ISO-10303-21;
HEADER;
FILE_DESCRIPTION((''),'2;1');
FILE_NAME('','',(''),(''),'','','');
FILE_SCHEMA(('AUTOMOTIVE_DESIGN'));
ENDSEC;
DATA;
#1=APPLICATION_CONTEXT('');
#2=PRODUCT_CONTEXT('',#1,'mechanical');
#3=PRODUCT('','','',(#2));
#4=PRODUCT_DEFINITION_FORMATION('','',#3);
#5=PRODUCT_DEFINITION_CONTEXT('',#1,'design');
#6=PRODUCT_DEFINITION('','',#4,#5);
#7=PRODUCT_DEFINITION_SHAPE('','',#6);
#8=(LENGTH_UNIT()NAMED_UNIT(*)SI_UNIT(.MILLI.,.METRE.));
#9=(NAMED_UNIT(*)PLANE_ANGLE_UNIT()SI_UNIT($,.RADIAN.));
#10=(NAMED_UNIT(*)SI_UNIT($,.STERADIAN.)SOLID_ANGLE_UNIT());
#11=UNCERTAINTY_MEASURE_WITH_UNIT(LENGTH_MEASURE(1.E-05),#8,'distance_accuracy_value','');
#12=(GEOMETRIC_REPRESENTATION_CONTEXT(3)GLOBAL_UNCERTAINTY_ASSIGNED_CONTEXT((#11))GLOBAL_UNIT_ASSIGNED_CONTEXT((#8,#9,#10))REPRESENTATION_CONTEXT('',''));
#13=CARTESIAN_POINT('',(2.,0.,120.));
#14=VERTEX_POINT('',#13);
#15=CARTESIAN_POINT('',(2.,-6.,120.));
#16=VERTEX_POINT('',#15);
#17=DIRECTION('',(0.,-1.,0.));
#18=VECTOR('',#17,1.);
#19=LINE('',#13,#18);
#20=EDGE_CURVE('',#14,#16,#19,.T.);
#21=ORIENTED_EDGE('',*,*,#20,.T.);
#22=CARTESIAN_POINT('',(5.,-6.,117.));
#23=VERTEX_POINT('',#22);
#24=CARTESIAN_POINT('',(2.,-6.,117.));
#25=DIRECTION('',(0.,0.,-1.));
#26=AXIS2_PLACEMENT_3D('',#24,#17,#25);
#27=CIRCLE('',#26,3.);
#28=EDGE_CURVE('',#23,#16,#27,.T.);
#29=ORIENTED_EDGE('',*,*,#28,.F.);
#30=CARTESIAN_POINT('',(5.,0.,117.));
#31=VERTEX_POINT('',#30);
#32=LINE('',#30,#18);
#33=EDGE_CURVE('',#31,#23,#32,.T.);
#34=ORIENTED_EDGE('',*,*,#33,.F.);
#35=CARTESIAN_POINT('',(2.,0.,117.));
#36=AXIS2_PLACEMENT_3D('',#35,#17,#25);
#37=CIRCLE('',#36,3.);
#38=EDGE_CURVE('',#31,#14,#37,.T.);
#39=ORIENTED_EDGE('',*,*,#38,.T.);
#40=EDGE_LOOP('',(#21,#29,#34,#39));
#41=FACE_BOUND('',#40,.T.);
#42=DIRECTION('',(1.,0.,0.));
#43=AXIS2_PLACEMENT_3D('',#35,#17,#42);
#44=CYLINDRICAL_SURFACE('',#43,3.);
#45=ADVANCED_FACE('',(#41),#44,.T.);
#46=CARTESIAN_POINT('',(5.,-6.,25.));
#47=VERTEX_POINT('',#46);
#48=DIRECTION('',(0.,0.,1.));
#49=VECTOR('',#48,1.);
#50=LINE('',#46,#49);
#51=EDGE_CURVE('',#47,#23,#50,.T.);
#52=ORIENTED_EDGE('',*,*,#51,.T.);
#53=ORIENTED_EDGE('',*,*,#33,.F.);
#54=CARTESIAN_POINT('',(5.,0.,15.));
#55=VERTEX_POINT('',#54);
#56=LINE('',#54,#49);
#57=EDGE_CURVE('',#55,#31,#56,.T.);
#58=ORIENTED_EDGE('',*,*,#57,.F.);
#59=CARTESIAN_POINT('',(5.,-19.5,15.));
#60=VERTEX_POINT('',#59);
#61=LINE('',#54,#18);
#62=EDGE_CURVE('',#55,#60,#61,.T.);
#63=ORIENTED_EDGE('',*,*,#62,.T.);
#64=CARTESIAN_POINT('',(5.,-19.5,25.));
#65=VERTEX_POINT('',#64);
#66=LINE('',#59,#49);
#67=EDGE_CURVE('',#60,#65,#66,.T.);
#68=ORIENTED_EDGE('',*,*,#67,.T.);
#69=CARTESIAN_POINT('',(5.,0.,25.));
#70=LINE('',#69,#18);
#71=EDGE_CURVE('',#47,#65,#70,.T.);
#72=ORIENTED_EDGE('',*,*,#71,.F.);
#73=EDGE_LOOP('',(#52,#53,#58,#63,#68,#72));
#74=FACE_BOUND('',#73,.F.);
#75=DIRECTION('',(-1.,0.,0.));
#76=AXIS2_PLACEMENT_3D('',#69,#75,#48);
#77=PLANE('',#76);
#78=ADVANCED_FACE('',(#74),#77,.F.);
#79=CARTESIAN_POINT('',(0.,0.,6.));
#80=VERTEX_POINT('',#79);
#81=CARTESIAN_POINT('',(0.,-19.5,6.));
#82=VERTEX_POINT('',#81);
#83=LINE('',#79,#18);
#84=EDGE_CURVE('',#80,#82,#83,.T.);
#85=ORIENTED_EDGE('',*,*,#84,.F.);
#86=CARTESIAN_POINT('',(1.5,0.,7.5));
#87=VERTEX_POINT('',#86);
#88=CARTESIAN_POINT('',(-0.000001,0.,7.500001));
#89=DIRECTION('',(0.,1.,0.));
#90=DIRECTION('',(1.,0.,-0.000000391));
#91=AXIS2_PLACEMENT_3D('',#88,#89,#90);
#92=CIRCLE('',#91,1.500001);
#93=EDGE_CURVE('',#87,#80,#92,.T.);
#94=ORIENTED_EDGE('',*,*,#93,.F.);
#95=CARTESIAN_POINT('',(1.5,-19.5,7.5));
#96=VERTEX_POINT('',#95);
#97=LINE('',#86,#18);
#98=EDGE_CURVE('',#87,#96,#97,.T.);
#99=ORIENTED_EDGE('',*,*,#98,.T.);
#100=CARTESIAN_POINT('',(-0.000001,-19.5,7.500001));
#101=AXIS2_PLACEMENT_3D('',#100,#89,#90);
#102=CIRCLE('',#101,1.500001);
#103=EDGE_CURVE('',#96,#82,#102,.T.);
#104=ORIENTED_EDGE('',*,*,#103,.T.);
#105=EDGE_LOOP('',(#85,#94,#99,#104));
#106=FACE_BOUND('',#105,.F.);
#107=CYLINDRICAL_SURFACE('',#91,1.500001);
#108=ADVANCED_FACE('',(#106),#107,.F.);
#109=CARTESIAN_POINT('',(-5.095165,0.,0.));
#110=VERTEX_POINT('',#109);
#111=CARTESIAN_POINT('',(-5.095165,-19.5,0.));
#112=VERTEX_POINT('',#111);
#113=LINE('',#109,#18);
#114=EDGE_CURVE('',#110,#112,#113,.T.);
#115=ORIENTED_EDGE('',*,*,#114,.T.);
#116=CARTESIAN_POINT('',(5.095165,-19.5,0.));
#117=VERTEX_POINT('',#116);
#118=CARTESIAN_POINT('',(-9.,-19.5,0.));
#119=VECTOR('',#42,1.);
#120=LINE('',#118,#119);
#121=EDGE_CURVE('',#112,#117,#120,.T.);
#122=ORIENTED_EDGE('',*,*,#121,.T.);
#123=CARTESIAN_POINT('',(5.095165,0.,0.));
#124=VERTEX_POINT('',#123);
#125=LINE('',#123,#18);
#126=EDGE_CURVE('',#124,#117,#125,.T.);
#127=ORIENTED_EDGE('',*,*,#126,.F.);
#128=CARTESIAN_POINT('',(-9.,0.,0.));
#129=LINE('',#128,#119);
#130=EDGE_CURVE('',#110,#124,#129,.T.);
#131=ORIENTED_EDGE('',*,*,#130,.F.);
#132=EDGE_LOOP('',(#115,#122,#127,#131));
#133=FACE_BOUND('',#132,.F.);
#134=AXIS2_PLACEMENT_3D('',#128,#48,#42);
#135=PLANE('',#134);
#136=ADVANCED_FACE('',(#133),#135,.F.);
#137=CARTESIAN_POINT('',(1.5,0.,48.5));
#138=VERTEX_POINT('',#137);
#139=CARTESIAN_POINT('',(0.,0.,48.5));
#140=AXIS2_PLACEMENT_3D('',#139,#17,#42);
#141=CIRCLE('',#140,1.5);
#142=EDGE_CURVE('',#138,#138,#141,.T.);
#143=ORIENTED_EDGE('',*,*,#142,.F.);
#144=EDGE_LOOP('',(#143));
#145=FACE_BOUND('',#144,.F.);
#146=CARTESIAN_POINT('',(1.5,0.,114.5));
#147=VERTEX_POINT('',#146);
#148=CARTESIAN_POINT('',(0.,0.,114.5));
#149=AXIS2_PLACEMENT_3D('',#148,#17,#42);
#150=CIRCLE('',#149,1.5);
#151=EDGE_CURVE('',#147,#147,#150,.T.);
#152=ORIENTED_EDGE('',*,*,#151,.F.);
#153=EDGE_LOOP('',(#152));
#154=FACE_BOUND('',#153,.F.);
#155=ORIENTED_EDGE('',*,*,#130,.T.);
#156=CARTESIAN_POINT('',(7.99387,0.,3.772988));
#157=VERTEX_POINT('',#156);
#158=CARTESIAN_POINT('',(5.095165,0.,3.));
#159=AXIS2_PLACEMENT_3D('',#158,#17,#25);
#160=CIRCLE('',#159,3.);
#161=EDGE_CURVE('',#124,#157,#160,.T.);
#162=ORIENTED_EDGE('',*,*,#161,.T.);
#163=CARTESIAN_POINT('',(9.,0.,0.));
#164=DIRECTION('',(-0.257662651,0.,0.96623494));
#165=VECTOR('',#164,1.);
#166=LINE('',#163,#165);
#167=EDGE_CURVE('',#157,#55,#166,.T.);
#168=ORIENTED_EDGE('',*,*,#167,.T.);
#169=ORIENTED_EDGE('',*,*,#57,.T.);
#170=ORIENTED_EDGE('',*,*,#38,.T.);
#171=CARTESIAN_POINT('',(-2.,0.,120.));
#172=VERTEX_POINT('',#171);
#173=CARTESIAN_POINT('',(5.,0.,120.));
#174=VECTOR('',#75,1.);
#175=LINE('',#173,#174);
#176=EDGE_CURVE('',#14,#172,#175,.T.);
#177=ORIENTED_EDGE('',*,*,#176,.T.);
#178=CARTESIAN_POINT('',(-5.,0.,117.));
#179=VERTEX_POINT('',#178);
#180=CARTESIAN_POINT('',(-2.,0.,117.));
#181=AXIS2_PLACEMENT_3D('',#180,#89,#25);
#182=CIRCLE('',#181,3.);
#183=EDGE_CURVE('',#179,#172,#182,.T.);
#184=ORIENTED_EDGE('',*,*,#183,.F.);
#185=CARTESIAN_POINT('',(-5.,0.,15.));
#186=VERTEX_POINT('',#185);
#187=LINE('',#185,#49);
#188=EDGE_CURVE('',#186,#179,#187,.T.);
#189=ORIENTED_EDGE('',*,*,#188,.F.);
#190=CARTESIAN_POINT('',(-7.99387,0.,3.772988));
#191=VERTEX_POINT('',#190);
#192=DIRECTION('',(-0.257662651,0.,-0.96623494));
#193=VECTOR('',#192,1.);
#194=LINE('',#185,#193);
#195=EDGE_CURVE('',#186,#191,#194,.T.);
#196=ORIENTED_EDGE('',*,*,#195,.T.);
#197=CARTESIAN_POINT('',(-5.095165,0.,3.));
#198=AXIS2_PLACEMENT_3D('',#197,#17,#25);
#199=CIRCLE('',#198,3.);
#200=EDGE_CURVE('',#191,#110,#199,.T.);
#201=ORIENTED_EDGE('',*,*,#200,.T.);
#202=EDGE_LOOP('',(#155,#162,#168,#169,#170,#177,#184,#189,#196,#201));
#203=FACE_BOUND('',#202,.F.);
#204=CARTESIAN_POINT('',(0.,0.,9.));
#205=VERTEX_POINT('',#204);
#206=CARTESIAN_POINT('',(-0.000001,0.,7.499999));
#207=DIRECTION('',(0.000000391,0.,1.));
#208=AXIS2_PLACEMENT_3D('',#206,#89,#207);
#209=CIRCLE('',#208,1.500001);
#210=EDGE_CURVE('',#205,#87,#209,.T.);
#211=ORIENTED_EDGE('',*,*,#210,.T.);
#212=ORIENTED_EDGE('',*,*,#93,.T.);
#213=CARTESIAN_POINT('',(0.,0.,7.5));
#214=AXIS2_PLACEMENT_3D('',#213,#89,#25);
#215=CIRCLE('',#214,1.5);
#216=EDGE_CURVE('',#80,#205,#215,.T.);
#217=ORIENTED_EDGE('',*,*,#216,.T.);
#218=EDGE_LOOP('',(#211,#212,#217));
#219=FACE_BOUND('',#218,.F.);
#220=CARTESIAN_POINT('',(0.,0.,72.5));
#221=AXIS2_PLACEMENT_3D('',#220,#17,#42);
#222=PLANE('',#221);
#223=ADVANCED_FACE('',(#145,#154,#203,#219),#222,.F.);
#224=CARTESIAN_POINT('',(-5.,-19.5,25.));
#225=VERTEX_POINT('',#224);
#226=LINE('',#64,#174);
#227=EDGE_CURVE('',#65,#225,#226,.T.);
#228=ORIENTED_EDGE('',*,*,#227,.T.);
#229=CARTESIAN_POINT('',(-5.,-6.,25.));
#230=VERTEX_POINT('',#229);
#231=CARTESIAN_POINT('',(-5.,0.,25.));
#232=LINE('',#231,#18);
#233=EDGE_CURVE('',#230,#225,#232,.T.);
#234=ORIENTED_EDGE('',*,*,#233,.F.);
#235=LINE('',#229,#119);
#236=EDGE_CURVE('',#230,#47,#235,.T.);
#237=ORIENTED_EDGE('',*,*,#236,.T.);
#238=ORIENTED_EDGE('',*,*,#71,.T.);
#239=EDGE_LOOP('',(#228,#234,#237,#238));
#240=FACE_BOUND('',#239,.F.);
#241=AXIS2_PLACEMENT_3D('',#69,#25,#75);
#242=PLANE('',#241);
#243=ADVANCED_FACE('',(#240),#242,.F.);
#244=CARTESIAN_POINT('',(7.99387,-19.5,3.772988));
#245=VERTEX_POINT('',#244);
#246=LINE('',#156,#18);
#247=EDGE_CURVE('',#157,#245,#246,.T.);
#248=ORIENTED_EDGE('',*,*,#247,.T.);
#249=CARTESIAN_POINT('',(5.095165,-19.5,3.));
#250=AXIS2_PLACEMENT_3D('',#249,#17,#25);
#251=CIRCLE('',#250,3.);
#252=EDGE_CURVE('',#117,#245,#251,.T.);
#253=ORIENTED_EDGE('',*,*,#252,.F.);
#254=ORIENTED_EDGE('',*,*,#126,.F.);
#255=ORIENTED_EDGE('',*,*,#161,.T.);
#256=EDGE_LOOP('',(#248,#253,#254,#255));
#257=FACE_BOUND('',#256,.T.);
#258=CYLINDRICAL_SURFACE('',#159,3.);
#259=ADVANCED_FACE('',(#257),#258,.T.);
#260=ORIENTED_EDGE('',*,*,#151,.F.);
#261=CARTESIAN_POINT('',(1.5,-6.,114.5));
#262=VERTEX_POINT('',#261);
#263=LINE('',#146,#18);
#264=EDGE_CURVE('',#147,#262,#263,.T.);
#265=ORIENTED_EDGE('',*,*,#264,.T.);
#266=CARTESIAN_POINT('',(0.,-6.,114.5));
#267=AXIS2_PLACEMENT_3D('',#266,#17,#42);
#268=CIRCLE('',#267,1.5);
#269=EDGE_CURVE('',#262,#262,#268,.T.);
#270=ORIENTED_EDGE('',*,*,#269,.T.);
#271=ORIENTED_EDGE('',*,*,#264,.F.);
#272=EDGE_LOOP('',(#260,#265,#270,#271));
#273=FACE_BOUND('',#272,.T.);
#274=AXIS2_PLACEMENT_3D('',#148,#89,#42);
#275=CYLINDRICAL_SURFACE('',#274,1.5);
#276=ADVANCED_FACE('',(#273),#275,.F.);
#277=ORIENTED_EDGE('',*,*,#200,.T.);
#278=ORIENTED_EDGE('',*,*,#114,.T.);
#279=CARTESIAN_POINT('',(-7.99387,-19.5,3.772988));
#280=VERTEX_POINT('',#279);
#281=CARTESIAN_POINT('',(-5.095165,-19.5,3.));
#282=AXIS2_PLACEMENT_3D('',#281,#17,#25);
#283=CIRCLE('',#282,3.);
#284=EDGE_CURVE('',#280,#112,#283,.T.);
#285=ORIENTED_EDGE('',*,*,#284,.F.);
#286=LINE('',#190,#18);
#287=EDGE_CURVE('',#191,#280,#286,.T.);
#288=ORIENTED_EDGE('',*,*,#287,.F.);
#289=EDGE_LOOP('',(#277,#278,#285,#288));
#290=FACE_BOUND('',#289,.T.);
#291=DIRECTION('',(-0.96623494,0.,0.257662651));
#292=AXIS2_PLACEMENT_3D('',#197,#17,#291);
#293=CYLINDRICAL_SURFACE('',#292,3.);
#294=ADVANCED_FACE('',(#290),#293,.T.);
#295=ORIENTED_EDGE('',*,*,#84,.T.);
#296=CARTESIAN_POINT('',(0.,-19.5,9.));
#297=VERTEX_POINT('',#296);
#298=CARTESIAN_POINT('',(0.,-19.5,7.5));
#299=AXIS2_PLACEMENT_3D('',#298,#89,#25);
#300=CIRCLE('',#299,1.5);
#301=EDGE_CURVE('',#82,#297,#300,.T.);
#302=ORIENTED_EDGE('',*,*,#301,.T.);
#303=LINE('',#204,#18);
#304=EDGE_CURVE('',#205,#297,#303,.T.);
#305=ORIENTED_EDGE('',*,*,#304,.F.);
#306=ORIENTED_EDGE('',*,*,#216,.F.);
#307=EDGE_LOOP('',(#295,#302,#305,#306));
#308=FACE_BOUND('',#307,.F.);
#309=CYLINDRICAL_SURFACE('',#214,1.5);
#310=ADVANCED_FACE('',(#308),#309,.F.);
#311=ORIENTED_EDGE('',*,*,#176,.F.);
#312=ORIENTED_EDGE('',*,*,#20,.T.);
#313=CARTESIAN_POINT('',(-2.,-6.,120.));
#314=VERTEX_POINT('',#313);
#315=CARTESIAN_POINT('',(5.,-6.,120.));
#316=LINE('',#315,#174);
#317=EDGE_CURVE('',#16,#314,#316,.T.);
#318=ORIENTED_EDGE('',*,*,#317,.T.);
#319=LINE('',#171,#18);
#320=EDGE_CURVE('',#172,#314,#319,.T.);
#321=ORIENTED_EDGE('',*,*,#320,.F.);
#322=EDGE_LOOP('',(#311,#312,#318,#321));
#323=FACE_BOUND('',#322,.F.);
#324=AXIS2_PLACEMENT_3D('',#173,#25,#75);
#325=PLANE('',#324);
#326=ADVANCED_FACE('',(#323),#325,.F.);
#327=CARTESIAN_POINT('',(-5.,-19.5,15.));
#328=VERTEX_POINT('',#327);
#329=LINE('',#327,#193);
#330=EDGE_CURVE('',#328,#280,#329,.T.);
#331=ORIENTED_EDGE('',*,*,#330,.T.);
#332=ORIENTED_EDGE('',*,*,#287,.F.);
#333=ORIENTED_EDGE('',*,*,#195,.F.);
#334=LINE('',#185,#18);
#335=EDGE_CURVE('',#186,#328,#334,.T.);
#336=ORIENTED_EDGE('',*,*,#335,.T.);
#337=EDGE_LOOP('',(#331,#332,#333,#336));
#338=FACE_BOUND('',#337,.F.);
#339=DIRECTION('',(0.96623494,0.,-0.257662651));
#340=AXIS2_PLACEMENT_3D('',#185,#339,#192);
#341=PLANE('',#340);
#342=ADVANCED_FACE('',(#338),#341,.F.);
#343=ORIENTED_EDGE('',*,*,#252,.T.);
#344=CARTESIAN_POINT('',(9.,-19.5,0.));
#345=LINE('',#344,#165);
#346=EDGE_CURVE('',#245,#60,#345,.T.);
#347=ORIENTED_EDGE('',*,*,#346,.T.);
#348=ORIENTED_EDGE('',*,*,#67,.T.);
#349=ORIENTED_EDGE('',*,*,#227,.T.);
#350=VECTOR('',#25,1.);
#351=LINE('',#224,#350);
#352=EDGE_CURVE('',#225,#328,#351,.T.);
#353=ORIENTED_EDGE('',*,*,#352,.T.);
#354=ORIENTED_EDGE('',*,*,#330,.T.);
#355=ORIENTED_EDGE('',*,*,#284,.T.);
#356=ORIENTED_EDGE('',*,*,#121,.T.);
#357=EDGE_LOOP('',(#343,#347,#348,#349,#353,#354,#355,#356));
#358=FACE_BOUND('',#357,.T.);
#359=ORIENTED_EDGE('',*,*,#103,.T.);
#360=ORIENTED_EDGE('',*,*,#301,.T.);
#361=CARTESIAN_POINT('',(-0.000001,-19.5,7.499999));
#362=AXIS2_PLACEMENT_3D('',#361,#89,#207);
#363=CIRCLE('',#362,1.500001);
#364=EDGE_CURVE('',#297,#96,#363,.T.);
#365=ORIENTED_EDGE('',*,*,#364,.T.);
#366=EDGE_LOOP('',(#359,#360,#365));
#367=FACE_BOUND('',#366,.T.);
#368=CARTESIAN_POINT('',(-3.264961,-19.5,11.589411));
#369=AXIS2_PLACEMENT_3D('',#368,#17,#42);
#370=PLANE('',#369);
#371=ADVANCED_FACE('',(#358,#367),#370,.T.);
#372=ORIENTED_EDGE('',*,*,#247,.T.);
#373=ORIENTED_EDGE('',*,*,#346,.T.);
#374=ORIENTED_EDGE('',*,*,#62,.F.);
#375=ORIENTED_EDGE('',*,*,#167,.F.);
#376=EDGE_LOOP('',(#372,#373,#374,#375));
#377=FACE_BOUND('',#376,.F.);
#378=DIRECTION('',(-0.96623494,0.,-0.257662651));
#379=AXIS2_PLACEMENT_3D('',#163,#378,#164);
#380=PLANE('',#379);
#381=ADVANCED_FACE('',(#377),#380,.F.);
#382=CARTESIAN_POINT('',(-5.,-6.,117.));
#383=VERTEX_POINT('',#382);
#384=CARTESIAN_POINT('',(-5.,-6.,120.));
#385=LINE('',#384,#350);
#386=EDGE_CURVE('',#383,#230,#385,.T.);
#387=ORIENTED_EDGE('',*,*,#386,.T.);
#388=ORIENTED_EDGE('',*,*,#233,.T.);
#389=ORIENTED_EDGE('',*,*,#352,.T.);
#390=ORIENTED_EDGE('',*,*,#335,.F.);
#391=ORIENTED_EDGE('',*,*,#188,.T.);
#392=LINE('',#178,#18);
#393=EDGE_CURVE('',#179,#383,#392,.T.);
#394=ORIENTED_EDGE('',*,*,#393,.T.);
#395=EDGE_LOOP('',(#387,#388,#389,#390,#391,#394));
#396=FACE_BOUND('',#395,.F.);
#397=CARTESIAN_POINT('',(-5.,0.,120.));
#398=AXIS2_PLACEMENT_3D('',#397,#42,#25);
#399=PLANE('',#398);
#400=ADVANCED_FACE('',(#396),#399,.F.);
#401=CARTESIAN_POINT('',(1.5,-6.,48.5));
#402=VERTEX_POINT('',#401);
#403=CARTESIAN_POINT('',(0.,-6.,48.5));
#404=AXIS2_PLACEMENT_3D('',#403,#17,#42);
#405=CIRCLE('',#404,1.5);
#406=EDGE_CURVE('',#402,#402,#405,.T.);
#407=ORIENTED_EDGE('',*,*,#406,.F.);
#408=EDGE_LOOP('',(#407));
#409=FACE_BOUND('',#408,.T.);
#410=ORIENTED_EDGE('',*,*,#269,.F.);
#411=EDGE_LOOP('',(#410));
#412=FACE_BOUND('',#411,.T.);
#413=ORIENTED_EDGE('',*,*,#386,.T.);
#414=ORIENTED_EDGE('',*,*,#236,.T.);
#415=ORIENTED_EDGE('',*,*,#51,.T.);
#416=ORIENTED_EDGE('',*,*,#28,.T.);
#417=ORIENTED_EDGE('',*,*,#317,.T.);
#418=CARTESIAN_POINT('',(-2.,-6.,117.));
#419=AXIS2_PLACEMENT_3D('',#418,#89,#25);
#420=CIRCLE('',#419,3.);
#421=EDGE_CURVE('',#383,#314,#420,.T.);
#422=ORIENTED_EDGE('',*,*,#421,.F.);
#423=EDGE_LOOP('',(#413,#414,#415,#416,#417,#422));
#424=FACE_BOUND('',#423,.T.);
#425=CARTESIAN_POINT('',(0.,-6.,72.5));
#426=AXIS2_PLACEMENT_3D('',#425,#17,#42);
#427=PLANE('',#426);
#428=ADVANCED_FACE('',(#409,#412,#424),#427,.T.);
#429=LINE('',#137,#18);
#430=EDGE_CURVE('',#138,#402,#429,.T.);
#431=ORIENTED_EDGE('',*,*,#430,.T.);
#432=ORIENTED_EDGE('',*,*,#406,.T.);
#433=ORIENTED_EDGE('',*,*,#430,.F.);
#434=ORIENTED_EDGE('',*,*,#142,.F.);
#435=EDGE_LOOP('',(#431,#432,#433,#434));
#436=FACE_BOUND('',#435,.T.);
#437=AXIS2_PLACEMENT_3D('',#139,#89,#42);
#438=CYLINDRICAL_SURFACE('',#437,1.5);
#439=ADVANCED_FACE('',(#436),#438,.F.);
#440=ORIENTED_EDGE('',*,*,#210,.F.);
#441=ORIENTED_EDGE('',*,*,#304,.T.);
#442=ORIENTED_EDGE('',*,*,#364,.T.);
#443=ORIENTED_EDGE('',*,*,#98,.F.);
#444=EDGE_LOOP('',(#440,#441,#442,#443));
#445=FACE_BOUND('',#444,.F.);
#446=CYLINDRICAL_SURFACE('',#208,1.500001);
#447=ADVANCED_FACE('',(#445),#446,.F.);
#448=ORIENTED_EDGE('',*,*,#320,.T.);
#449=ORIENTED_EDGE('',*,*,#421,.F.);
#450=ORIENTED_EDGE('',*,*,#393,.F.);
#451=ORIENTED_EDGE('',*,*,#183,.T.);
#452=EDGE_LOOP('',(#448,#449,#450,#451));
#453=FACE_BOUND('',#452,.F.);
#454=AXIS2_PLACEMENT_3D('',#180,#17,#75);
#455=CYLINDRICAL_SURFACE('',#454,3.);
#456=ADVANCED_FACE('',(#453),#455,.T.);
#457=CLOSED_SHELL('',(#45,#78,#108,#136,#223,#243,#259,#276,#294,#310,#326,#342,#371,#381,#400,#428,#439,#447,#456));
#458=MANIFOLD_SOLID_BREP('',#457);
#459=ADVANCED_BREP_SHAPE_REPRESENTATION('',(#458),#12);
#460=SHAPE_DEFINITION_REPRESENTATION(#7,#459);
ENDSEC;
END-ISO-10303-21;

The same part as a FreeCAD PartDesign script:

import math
import FreeCAD as App
import Part
import Sketcher

V = App.Vector


def edges_at(feature, points):
    """Names of the edges that pass closest to the given points."""
    edges = feature.Shape.Edges
    near = lambda p: min(range(len(edges)), key=lambda i: edges[i].distToShape(Part.Vertex(*p))[0])
    return sorted({f"Edge{near(p) + 1}" for p in points})

doc = App.newDocument("Part")
body = doc.addObject("PartDesign::Body", "Body")

# Sketch on XZ plane
sketch1 = doc.addObject("Sketcher::SketchObject", "Sketch")
body.addObject(sketch1)
sketch1.AttachmentSupport = (doc.XZ_Plane, [""])
sketch1.MapMode = "FlatFace"
sketch1.addGeometry([
    Part.LineSegment(V(-9, 0, 0), V(9, 0, 0)),  # 0
    Part.LineSegment(V(9, 0, 0), V(5, 15, 0)),  # 1
    Part.LineSegment(V(5, 15, 0), V(5, 25, 0)),  # 2
    Part.LineSegment(V(5, 25, 0), V(-5, 25, 0)),  # 3
    Part.LineSegment(V(-5, 25, 0), V(-5, 15, 0)),  # 4
    Part.LineSegment(V(-5, 15, 0), V(-9, 0, 0)),  # 5
    Part.ArcOfCircle(Part.Circle(V(0, 7.5, 0), V(0, 0, 1), 1.5), math.radians(90), math.radians(270)),  # 6
    Part.ArcOfCircle(Part.Circle(V(-0.000001, 7.499999, 0), V(0, 0, 1), 1.500001), math.radians(0.000022), math.radians(89.999978)),  # 7
    Part.ArcOfCircle(Part.Circle(V(-0.000001, 7.500001, 0), V(0, 0, 1), 1.500001), math.radians(-89.999978), math.radians(-0.000022)),  # 8
], False)
sketch1.addConstraint([
    Sketcher.Constraint("Coincident", 0, 2, 1, 1),
    Sketcher.Constraint("Coincident", 1, 2, 2, 1),
    Sketcher.Constraint("Coincident", 2, 2, 3, 1),
    Sketcher.Constraint("Coincident", 3, 2, 4, 1),
    Sketcher.Constraint("Coincident", 4, 2, 5, 1),
    Sketcher.Constraint("Coincident", 5, 2, 0, 1),
    Sketcher.Constraint("Tangent", 6, 1, 7, 2),
    Sketcher.Constraint("Tangent", 7, 1, 8, 2),
    Sketcher.Constraint("Tangent", 8, 1, 6, 2),
    Sketcher.Constraint("Horizontal", 0),
    Sketcher.Constraint("Vertical", 2),
    Sketcher.Constraint("Horizontal", 3),
    Sketcher.Constraint("Vertical", 4),
    Sketcher.Constraint("Symmetric", 0, 2, 5, 2, -1, 1),
    Sketcher.Constraint("Symmetric", 1, 2, 4, 2, -2),
    Sketcher.Constraint("PointOnObject", 6, 3, -2),
    Sketcher.Constraint("PointOnObject", 6, 1, -2),
    Sketcher.Constraint("PointOnObject", 8, 1, -2),
    Sketcher.Constraint("Horizontal", 8, 3, 7, 1),
    Sketcher.Constraint("Equal", 3, 2),
    Sketcher.Constraint("Radius", 6, 1.5),
    Sketcher.Constraint("DistanceX", 0, 1, 0, 2, 18.0),
    Sketcher.Constraint("DistanceX", 3, 2, 3, 1, 10.0),
    Sketcher.Constraint("DistanceY", -1, 1, 1, 2, 15.0),
    Sketcher.Constraint("DistanceY", -1, 1, 6, 1, 9.0),
])
pad1 = doc.addObject("PartDesign::Pad", "Pad")
body.addObject(pad1)
pad1.Profile = sketch1
pad1.Length = 19.5

# Sketch on XZ plane
sketch2 = doc.addObject("Sketcher::SketchObject", "Sketch001")
body.addObject(sketch2)
sketch2.AttachmentSupport = (doc.XZ_Plane, [""])
sketch2.MapMode = "FlatFace"
sketch2.addGeometry([
    Part.LineSegment(V(5, 25, 0), V(5, 120, 0)),  # 0
    Part.LineSegment(V(5, 120, 0), V(-5, 120, 0)),  # 1
    Part.LineSegment(V(-5, 120, 0), V(-5, 25, 0)),  # 2
    Part.LineSegment(V(-5, 25, 0), V(5, 25, 0)),  # 3
    Part.Circle(V(0, 48.5, 0), V(0, 0, 1), 1.5),  # 4
    Part.Circle(V(0, 114.5, 0), V(0, 0, 1), 1.5),  # 5
], False)
sketch2.addConstraint([
    Sketcher.Constraint("Coincident", 0, 2, 1, 1),
    Sketcher.Constraint("Coincident", 1, 2, 2, 1),
    Sketcher.Constraint("Coincident", 2, 2, 3, 1),
    Sketcher.Constraint("Coincident", 3, 2, 0, 1),
    Sketcher.Constraint("Vertical", 0),
    Sketcher.Constraint("Horizontal", 1),
    Sketcher.Constraint("Vertical", 2),
    Sketcher.Constraint("Horizontal", 3),
    Sketcher.Constraint("Equal", 4, 5),
    Sketcher.Constraint("PointOnObject", 4, 3, -2),
    Sketcher.Constraint("PointOnObject", 5, 3, -2),
    Sketcher.Constraint("Diameter", 4, 3.0),
    Sketcher.Constraint("DistanceX", 1, 2, 1, 1, 10.0),
    Sketcher.Constraint("DistanceY", 0, 1, 0, 2, 95.0),
    Sketcher.Constraint("DistanceX", -1, 1, 0, 2, 5.0),
    Sketcher.Constraint("DistanceY", -1, 1, 0, 2, 120.0),
    Sketcher.Constraint("DistanceY", 4, 3, 5, 3, 66.0),
    Sketcher.Constraint("DistanceY", -1, 1, 4, 3, 48.5),
])
pad2 = doc.addObject("PartDesign::Pad", "Pad001")
body.addObject(pad2)
pad2.Profile = sketch2
pad2.Length = 6
doc.recompute()

fillet = doc.addObject("PartDesign::Fillet", "Fillet")
body.addObject(fillet)
fillet.Base = (pad2, edges_at(pad2, [
    (5, -3, 120),
    (-5, -3, 120),
    (9, -9.75, 0),
    (-9, -9.75, 0),
]))
fillet.Radius = 3

doc.recompute()
